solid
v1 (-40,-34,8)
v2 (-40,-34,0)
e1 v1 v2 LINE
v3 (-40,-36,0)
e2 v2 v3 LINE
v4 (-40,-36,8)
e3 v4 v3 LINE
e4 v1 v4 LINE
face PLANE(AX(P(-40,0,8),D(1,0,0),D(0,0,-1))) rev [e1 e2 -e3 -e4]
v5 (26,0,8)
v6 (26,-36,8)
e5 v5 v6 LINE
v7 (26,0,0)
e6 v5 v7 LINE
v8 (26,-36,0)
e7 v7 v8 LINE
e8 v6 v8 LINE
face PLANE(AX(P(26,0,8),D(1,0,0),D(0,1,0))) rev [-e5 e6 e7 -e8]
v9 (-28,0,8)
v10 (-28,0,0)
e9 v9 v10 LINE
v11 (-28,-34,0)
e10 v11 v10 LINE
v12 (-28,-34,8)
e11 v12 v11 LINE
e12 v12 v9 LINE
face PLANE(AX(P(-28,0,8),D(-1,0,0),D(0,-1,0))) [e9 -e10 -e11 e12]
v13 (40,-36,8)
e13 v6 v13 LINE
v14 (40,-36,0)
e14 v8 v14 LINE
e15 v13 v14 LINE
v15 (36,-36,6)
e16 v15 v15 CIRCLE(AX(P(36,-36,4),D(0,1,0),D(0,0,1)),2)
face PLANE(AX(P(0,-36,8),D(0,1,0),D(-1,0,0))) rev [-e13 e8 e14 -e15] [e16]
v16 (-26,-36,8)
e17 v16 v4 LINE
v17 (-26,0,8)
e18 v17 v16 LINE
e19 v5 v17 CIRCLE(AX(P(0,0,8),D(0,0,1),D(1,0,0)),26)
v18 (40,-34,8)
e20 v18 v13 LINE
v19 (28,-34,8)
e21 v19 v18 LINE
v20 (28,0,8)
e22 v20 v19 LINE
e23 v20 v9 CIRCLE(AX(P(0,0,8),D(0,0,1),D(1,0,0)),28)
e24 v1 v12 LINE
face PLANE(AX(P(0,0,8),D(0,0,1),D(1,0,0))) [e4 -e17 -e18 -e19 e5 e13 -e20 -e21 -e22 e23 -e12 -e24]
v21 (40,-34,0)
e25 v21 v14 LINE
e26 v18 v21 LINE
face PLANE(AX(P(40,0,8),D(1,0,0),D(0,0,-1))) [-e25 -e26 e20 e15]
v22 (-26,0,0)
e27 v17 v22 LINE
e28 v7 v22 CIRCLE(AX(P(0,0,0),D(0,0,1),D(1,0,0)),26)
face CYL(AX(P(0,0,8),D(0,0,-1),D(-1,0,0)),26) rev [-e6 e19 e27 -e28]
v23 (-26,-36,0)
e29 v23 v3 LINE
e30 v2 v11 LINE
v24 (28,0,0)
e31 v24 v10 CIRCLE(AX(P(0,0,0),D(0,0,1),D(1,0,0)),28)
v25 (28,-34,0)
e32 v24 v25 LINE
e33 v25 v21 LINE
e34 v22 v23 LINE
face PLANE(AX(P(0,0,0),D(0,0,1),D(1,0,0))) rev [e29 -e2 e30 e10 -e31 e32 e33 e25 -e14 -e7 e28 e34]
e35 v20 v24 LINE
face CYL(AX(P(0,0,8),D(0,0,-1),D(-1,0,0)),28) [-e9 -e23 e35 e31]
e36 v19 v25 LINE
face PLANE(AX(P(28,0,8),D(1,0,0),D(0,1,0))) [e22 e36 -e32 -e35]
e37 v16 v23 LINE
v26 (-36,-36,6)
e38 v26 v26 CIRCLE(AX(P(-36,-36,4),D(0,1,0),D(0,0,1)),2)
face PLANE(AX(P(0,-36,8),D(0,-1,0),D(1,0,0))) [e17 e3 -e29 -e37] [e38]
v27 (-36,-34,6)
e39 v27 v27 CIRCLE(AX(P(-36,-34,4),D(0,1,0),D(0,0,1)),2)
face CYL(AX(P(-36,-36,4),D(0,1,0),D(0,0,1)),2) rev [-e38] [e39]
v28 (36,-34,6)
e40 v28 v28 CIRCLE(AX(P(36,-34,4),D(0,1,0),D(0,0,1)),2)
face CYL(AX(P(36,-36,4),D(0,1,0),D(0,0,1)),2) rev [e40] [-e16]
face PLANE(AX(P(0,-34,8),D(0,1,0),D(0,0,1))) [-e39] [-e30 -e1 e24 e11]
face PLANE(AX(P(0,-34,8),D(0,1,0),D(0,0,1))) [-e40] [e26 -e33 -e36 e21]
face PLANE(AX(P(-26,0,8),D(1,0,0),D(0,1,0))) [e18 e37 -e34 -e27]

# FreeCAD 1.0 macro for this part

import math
import FreeCAD as App
import Part
import Sketcher
from FreeCAD import Vector

doc = App.newDocument("Part")
params = doc.addObject("Spreadsheet::Sheet", "Params")
for row, (alias, value) in enumerate([
    ("sketch1_radius", "28 mm"),
    ("sketch1_radius2", "26 mm"),
    ("sketch1_width", "12 mm"),
    ("sketch1_height", "34 mm"),
    ("sketch1_height2", "2 mm"),
    ("pad1_length", "8 mm"),
    ("sketch2_diameter", "3.3 mm"),
    ("hole_diameter", "3.3 mm"),
    ("sketch3_diameter", "4 mm"),
], start=1):
    params.set(f"A{row}", alias)
    params.set(f"B{row}", "=" + value)
    params.setAlias(f"B{row}", alias)

body = doc.addObject("PartDesign::Body", "Body")

sketch1 = body.newObject("Sketcher::SketchObject", "Sketch")
sketch1.AttachmentSupport = (doc.getObject("XY_Plane"), [""])
sketch1.MapMode = "FlatFace"
sketch1.addGeometry([
    Part.LineSegment(Vector(28, -34, 0), Vector(28, 0, 0)),
    Part.ArcOfCircle(Part.Circle(Vector(0, 0, 0), Vector(0, 0, 1), 28), math.radians(0), math.radians(180)),
    Part.LineSegment(Vector(-28, 0, 0), Vector(-28, -34, 0)),
    Part.LineSegment(Vector(-28, -34, 0), Vector(-40, -34, 0)),
    Part.LineSegment(Vector(-40, -34, 0), Vector(-40, -36, 0)),
    Part.LineSegment(Vector(-40, -36, 0), Vector(-26, -36, 0)),
    Part.LineSegment(Vector(-26, -36, 0), Vector(-26, 0, 0)),
    Part.ArcOfCircle(Part.Circle(Vector(0, 0, 0), Vector(0, 0, 1), 26), math.radians(0), math.radians(180)),
    Part.LineSegment(Vector(26, 0, 0), Vector(26, -36, 0)),
    Part.LineSegment(Vector(26, -36, 0), Vector(40, -36, 0)),
    Part.LineSegment(Vector(40, -36, 0), Vector(40, -34, 0)),
    Part.LineSegment(Vector(40, -34, 0), Vector(28, -34, 0)),
], False)
sketch1.addConstraint([
    Sketcher.Constraint("Tangent", 0, 2, 1, 1),
    Sketcher.Constraint("Tangent", 1, 2, 2, 1),
    Sketcher.Constraint("Coincident", 2, 2, 3, 1),
    Sketcher.Constraint("Coincident", 3, 2, 4, 1),
    Sketcher.Constraint("Coincident", 4, 2, 5, 1),
    Sketcher.Constraint("Coincident", 5, 2, 6, 1),
    Sketcher.Constraint("Tangent", 6, 2, 7, 2),
    Sketcher.Constraint("Tangent", 7, 1, 8, 1),
    Sketcher.Constraint("Coincident", 8, 2, 9, 1),
    Sketcher.Constraint("Coincident", 9, 2, 10, 1),
    Sketcher.Constraint("Coincident", 10, 2, 11, 1),
    Sketcher.Constraint("Coincident", 11, 2, 0, 1),
    Sketcher.Constraint("Vertical", 0),
    Sketcher.Constraint("Vertical", 2),
    Sketcher.Constraint("Horizontal", 3),
    Sketcher.Constraint("Vertical", 4),
    Sketcher.Constraint("Horizontal", 5),
    Sketcher.Constraint("Vertical", 6),
    Sketcher.Constraint("Vertical", 8),
    Sketcher.Constraint("Horizontal", 9),
    Sketcher.Constraint("Vertical", 10),
    Sketcher.Constraint("Horizontal", 11),
    Sketcher.Constraint("Coincident", 1, 3, -1, 1),
    Sketcher.Constraint("Coincident", 7, 3, -1, 1),
    Sketcher.Constraint("Symmetric", 4, 2, 9, 2, -2),
    Sketcher.Constraint("Horizontal", 3, 2, 10, 2),
    Sketcher.Constraint("Radius", 1, 28.0),
    Sketcher.Constraint("Radius", 7, 26.0),
    Sketcher.Constraint("DistanceX", 3, 2, 3, 1, 12.0),
    Sketcher.Constraint("DistanceY", 0, 1, 0, 2, 34.0),
    Sketcher.Constraint("DistanceY", 4, 2, 4, 1, 2.0),
])
sketch1.setExpression("Constraints[26]", "Params.sketch1_radius")
sketch1.setExpression("Constraints[27]", "Params.sketch1_radius2")
sketch1.setExpression("Constraints[28]", "Params.sketch1_width")
sketch1.setExpression("Constraints[29]", "Params.sketch1_height")
sketch1.setExpression("Constraints[30]", "Params.sketch1_height2")
pad1 = body.newObject("PartDesign::Pad", "Pad")
pad1.Profile = sketch1
pad1.setExpression("Length", "Params.pad1_length")

sketch2 = body.newObject("Sketcher::SketchObject", "Sketch001")
sketch2.AttachmentSupport = (doc.getObject("XZ_Plane"), [""])
sketch2.MapMode = "FlatFace"
sketch2.AttachmentOffset = App.Placement(Vector(0, 0, 34), App.Rotation())
sketch2.addGeometry([
    Part.Circle(Vector(-36, 4, 0), Vector(0, 0, 1), 1.6),
    Part.Circle(Vector(36, 4, 0), Vector(0, 0, 1), 1.6),
], False)
sketch2.addConstraint([
    Sketcher.Constraint("Equal", 0, 1),
    Sketcher.Constraint("Symmetric", 0, 3, 1, 3, -2),
    Sketcher.Constraint("Diameter", 0, 3.3),
    Sketcher.Constraint("DistanceX", 0, 3, -1, 1, 36.0),
    Sketcher.Constraint("DistanceY", -1, 1, 0, 3, 4.0),
])
sketch2.setExpression("Constraints[2]", "Params.sketch2_diameter")
doc.recompute()
hole = body.newObject("PartDesign::Hole", "Hole")
hole.Profile = sketch2
hole.ThreadType = "None"
hole.setExpression("Diameter", "Params.hole_diameter")
hole.DepthType = "ThroughAll"
hole.Reversed = True

sketch3 = body.newObject("Sketcher::SketchObject", "Sketch002")
sketch3.AttachmentSupport = (doc.getObject("XZ_Plane"), [""])
sketch3.MapMode = "FlatFace"
sketch3.AttachmentOffset = App.Placement(Vector(0, 0, 34), App.Rotation())
sketch3.addGeometry([
    Part.Circle(Vector(-36, 4, 0), Vector(0, 0, 1), 2),
    Part.Circle(Vector(36, 4, 0), Vector(0, 0, 1), 2),
], False)
sketch3.addConstraint([
    Sketcher.Constraint("Equal", 0, 1),
    Sketcher.Constraint("Symmetric", 0, 3, 1, 3, -2),
    Sketcher.Constraint("Diameter", 0, 4.0),
    Sketcher.Constraint("DistanceX", 0, 3, -1, 1, 36.0),
    Sketcher.Constraint("DistanceY", -1, 1, 0, 3, 4.0),
])
sketch3.setExpression("Constraints[2]", "Params.sketch3_diameter")
pocket1 = body.newObject("PartDesign::Pocket", "Pocket")
pocket1.Profile = sketch3
pocket1.Type = "ThroughAll"
pocket1.Reversed = True

doc.recompute()
